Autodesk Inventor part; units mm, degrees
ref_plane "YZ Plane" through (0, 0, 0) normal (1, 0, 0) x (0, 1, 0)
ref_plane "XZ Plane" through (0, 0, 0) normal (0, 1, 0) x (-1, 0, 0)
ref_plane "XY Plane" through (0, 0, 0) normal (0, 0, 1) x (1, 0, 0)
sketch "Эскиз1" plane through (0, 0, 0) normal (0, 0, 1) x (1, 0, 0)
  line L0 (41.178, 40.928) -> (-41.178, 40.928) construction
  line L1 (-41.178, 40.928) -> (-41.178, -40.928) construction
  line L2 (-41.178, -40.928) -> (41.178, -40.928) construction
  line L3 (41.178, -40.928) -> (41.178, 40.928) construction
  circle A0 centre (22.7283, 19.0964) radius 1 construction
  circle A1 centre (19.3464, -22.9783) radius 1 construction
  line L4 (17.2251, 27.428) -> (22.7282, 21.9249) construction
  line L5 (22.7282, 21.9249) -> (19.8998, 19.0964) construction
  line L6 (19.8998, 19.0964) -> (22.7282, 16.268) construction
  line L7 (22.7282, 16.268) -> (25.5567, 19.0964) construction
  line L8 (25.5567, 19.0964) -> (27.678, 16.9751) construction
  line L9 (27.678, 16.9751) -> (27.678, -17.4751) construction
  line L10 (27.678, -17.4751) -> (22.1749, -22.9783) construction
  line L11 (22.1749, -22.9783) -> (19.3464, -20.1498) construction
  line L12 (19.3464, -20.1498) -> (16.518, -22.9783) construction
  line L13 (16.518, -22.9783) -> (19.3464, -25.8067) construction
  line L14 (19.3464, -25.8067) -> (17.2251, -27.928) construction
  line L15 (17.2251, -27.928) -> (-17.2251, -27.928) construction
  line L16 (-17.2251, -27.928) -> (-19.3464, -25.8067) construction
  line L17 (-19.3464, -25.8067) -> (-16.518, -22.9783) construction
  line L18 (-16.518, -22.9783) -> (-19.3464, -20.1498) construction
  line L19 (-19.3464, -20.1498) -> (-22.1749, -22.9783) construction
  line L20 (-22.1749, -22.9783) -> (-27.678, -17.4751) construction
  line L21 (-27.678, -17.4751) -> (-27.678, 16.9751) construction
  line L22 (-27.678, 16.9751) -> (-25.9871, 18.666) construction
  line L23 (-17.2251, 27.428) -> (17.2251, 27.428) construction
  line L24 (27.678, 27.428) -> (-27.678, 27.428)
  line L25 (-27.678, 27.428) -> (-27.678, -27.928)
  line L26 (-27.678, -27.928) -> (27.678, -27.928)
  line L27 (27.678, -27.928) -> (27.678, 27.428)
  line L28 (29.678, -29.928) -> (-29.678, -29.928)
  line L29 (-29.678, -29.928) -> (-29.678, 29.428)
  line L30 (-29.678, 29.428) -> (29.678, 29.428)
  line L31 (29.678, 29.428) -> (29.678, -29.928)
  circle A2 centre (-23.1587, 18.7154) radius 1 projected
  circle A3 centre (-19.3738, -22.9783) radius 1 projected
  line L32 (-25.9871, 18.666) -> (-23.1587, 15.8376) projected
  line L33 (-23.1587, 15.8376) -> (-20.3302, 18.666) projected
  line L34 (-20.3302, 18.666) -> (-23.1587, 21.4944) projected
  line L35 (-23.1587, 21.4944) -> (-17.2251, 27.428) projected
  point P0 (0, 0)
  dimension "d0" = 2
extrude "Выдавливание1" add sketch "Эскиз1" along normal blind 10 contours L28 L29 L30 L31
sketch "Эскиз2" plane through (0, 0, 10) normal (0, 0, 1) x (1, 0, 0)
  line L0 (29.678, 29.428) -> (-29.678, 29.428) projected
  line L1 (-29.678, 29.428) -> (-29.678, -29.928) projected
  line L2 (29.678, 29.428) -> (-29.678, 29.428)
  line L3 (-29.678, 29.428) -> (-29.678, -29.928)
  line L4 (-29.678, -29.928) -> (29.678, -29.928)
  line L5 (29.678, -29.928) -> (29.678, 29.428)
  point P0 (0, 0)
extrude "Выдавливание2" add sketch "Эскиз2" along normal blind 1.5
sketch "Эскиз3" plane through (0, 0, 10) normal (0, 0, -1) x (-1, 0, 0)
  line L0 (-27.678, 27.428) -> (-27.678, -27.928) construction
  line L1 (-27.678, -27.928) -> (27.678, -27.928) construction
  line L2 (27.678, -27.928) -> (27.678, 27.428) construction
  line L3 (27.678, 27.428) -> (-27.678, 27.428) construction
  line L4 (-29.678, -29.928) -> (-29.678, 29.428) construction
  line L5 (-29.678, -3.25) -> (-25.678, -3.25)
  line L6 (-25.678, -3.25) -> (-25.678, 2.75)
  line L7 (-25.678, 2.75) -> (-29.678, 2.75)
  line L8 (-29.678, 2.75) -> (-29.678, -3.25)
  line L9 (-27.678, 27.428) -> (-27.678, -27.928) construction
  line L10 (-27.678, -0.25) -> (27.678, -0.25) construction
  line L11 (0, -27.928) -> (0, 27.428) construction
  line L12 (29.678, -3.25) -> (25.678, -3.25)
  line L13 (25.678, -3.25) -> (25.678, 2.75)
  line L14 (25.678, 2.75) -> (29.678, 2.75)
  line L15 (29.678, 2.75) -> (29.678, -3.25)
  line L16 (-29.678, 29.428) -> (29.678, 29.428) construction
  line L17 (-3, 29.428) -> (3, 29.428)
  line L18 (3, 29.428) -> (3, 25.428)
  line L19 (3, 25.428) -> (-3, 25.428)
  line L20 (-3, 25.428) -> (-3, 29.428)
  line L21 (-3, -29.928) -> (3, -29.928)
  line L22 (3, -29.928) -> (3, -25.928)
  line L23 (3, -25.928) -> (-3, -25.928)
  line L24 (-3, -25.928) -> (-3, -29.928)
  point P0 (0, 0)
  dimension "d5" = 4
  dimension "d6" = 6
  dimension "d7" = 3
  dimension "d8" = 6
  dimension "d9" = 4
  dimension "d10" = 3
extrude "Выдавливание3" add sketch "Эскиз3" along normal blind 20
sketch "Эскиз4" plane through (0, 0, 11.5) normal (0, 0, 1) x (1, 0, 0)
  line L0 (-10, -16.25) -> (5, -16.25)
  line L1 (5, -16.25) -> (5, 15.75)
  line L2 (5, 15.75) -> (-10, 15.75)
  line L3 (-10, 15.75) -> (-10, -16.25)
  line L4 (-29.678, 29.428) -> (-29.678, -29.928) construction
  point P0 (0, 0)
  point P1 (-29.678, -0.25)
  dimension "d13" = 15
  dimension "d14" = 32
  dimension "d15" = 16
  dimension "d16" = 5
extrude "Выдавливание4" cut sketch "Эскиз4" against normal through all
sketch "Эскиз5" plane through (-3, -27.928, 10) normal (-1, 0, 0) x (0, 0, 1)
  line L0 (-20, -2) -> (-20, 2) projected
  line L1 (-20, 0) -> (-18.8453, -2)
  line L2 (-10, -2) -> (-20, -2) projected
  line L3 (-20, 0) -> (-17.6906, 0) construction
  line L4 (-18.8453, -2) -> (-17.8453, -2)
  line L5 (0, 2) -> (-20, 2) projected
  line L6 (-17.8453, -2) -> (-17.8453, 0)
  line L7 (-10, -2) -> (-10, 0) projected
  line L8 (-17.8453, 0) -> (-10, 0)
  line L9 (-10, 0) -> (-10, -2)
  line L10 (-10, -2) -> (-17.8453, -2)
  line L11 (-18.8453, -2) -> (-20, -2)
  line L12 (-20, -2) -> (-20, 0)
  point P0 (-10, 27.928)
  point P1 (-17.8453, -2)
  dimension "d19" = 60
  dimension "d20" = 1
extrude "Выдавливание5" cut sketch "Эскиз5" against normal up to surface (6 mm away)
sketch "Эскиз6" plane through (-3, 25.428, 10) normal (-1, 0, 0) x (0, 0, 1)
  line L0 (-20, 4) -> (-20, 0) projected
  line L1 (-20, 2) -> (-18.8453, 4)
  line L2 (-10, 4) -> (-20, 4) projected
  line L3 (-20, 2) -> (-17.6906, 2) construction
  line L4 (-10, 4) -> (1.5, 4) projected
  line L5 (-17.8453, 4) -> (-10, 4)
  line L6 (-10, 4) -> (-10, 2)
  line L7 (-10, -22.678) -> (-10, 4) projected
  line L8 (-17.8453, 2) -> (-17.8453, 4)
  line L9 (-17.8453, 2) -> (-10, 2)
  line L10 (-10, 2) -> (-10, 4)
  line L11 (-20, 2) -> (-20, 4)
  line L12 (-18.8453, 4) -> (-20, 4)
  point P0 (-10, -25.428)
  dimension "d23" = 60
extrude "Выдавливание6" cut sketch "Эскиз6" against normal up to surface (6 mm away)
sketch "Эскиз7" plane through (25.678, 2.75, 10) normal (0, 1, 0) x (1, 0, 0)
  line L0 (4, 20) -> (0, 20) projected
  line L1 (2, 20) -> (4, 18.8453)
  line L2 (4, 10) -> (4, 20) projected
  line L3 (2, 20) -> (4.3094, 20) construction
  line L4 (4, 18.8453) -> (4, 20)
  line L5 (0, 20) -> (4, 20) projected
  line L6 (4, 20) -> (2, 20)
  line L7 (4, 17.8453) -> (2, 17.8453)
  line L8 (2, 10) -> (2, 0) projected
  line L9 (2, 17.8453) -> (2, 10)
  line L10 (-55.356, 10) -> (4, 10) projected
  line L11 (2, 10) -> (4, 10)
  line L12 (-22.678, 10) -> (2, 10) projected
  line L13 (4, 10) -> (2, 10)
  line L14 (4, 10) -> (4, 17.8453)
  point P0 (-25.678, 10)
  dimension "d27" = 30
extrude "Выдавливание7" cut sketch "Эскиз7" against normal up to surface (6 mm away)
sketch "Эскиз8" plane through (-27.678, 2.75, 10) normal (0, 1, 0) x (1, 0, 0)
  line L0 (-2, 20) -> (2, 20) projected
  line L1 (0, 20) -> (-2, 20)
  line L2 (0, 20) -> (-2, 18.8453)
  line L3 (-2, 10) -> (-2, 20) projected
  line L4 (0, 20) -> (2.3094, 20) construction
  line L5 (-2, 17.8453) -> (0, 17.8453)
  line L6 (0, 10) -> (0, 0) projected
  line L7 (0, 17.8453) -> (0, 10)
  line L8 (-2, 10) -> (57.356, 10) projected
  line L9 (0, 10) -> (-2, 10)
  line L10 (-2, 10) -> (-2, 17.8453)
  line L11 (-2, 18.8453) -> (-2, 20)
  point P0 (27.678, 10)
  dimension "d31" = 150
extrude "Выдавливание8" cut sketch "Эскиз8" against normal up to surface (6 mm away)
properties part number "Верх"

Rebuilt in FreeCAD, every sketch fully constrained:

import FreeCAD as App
import Part
import Sketcher
from FreeCAD import Vector
Q = App.Units.Quantity

doc = App.newDocument("Part")
body = doc.addObject("PartDesign::Body", "Body")

sketch1 = doc.addObject("Sketcher::SketchObject", "Sketch")
body.addObject(sketch1)
sketch1.AttachmentSupport = (doc.XY_Plane, [""])
sketch1.MapMode = "FlatFace"
sketch1.addGeometry([
    Part.LineSegment(Vector(-30, -30, 0), Vector(30, -30, 0)),
    Part.LineSegment(Vector(30, -30, 0), Vector(30, 29, 0)),
    Part.LineSegment(Vector(30, 29, 0), Vector(-30, 29, 0)),
    Part.LineSegment(Vector(-30, 29, 0), Vector(-30, -30, 0)),
    Part.LineSegment(Vector(-28, 27, 0), Vector(28, 27, 0)),
    Part.LineSegment(Vector(28, 27, 0), Vector(28, -28, 0)),
    Part.LineSegment(Vector(28, -28, 0), Vector(-28, -28, 0)),
    Part.LineSegment(Vector(-28, -28, 0), Vector(-28, 27, 0)),
], False)
sketch1.addConstraint([
    Sketcher.Constraint("Coincident", 0, 2, 1, 1),
    Sketcher.Constraint("Coincident", 1, 2, 2, 1),
    Sketcher.Constraint("Coincident", 2, 2, 3, 1),
    Sketcher.Constraint("Coincident", 3, 2, 0, 1),
    Sketcher.Constraint("Coincident", 4, 2, 5, 1),
    Sketcher.Constraint("Coincident", 5, 2, 6, 1),
    Sketcher.Constraint("Coincident", 6, 2, 7, 1),
    Sketcher.Constraint("Coincident", 7, 2, 4, 1),
    Sketcher.Constraint("Horizontal", 0),
    Sketcher.Constraint("Vertical", 1),
    Sketcher.Constraint("Horizontal", 2),
    Sketcher.Constraint("Vertical", 3),
    Sketcher.Constraint("Horizontal", 4),
    Sketcher.Constraint("Vertical", 5),
    Sketcher.Constraint("Horizontal", 6),
    Sketcher.Constraint("Vertical", 7),
    Sketcher.Constraint("Equal", 2, 1),
    Sketcher.Constraint("Equal", 6, 5),
    Sketcher.Constraint("DistanceX", 4, 2, 1, 2, Q("2 mm")),
    Sketcher.Constraint("DistanceY", 4, 2, 1, 2, Q("2 mm")),
    Sketcher.Constraint("DistanceY", 0, 2, 5, 2, Q("2 mm")),
    Sketcher.Constraint("DistanceX", 0, 1, 0, 2, Q("59.356 mm")),
    Sketcher.Constraint("DistanceX", -1, 1, 0, 2, Q("29.678 mm")),
    Sketcher.Constraint("DistanceY", 0, 2, -1, 1, Q("29.928 mm")),
])
pad1 = doc.addObject("PartDesign::Pad", "Pad")
body.addObject(pad1)
pad1.Profile = sketch1
pad1.Length = 10

sketch2 = doc.addObject("Sketcher::SketchObject", "Sketch001")
body.addObject(sketch2)
sketch2.AttachmentSupport = (doc.XY_Plane, [""])
sketch2.MapMode = "FlatFace"
sketch2.AttachmentOffset = App.Placement(Vector(0, 0, 10), App.Rotation())
sketch2.addGeometry([
    Part.LineSegment(Vector(30, -30, 0), Vector(30, 29, 0)),
    Part.LineSegment(Vector(30, 29, 0), Vector(-30, 29, 0)),
    Part.LineSegment(Vector(-30, 29, 0), Vector(-30, -30, 0)),
    Part.LineSegment(Vector(-30, -30, 0), Vector(30, -30, 0)),
], False)
sketch2.addConstraint([
    Sketcher.Constraint("Coincident", 0, 2, 1, 1),
    Sketcher.Constraint("Coincident", 1, 2, 2, 1),
    Sketcher.Constraint("Coincident", 2, 2, 3, 1),
    Sketcher.Constraint("Coincident", 3, 2, 0, 1),
    Sketcher.Constraint("Vertical", 0),
    Sketcher.Constraint("Horizontal", 1),
    Sketcher.Constraint("Vertical", 2),
    Sketcher.Constraint("Horizontal", 3),
    Sketcher.Constraint("Equal", 3, 0),
    Sketcher.Constraint("DistanceX", 1, 2, 1, 1, Q("59.356 mm")),
    Sketcher.Constraint("DistanceX", -1, 1, 0, 2, Q("29.678 mm")),
    Sketcher.Constraint("DistanceY", -1, 1, 0, 2, Q("29.428 mm")),
])
pad2 = doc.addObject("PartDesign::Pad", "Pad001")
body.addObject(pad2)
pad2.Profile = sketch2
pad2.Length = 1.5

sketch3 = doc.addObject("Sketcher::SketchObject", "Sketch002")
body.addObject(sketch3)
sketch3.AttachmentSupport = (doc.XY_Plane, [""])
sketch3.MapMode = "FlatFace"
sketch3.AttachmentOffset = App.Placement(Vector(0, 0, 10), App.Rotation())
sketch3.addGeometry([
    Part.LineSegment(Vector(29.7, 2.8, 0), Vector(29.7, -3.2, 0)),
    Part.LineSegment(Vector(29.7, -3.2, 0), Vector(25.7, -3.2, 0)),
    Part.LineSegment(Vector(25.7, -3.2, 0), Vector(25.7, 2.8, 0)),
    Part.LineSegment(Vector(25.7, 2.8, 0), Vector(29.7, 2.8, 0)),
    Part.LineSegment(Vector(-25.7, -3.2, 0), Vector(-29.7, -3.2, 0)),
    Part.LineSegment(Vector(-29.7, -3.2, 0), Vector(-29.7, 2.8, 0)),
    Part.LineSegment(Vector(-29.7, 2.8, 0), Vector(-25.7, 2.8, 0)),
    Part.LineSegment(Vector(-25.7, 2.8, 0), Vector(-25.7, -3.2, 0)),
    Part.LineSegment(Vector(-3, 29.4, 0), Vector(3, 29.4, 0)),
    Part.LineSegment(Vector(3, 29.4, 0), Vector(3, 25.4, 0)),
    Part.LineSegment(Vector(3, 25.4, 0), Vector(-3, 25.4, 0)),
    Part.LineSegment(Vector(-3, 25.4, 0), Vector(-3, 29.4, 0)),
    Part.LineSegment(Vector(3, -25.9, 0), Vector(3, -29.9, 0)),
    Part.LineSegment(Vector(3, -29.9, 0), Vector(-3, -29.9, 0)),
    Part.LineSegment(Vector(-3, -29.9, 0), Vector(-3, -25.9, 0)),
    Part.LineSegment(Vector(-3, -25.9, 0), Vector(3, -25.9, 0)),
], False)
sketch3.addConstraint([
    Sketcher.Constraint("Coincident", 0, 2, 1, 1),
    Sketcher.Constraint("Coincident", 1, 2, 2, 1),
    Sketcher.Constraint("Coincident", 2, 2, 3, 1),
    Sketcher.Constraint("Coincident", 3, 2, 0, 1),
    Sketcher.Constraint("Coincident", 4, 2, 5, 1),
    Sketcher.Constraint("Coincident", 5, 2, 6, 1),
    Sketcher.Constraint("Coincident", 6, 2, 7, 1),
    Sketcher.Constraint("Coincident", 7, 2, 4, 1),
    Sketcher.Constraint("Coincident", 8, 2, 9, 1),
    Sketcher.Constraint("Coincident", 9, 2, 10, 1),
    Sketcher.Constraint("Coincident", 10, 2, 11, 1),
    Sketcher.Constraint("Coincident", 11, 2, 8, 1),
    Sketcher.Constraint("Coincident", 12, 2, 13, 1),
    Sketcher.Constraint("Coincident", 13, 2, 14, 1),
    Sketcher.Constraint("Coincident", 14, 2, 15, 1),
    Sketcher.Constraint("Coincident", 15, 2, 12, 1),
    Sketcher.Constraint("Vertical", 0),
    Sketcher.Constraint("Horizontal", 1),
    Sketcher.Constraint("Vertical", 2),
    Sketcher.Constraint("Horizontal", 3),
    Sketcher.Constraint("Horizontal", 4),
    Sketcher.Constraint("Vertical", 5),
    Sketcher.Constraint("Horizontal", 6),
    Sketcher.Constraint("Vertical", 7),
    Sketcher.Constraint("Horizontal", 8),
    Sketcher.Constraint("Vertical", 9),
    Sketcher.Constraint("Horizontal", 10),
    Sketcher.Constraint("Vertical", 11),
    Sketcher.Constraint("Vertical", 12),
    Sketcher.Constraint("Horizontal", 13),
    Sketcher.Constraint("Vertical", 14),
    Sketcher.Constraint("Horizontal", 15),
    Sketcher.Constraint("Symmetric", 0, 2, 4, 2, -2),
    Sketcher.Constraint("Symmetric", 2, 2, 6, 2, -2),
    Sketcher.Constraint("Vertical", 9, 2, 12, 2),
    Sketcher.Constraint("Vertical", 11, 2, 13, 2),
    Sketcher.Constraint("Equal", 15, 0),
    Sketcher.Constraint("Equal", 6, 9),
    Sketcher.Constraint("Equal", 11, 12),
    Sketcher.Constraint("DistanceX", 1, 2, 1, 1, Q("4 mm")),
    Sketcher.Constraint("DistanceX", 8, 1, 8, 2, Q("6 mm")),
    Sketcher.Constraint("DistanceX", -1, 1, 8, 2, Q("3 mm")),
    Sketcher.Constraint("DistanceY", 0, 2, -1, 1, Q("3.25 mm")),
    Sketcher.Constraint("DistanceX", -1, 1, 0, 2, Q("29.678 mm")),
    Sketcher.Constraint("DistanceY", -1, 1, 8, 2, Q("29.428 mm")),
    Sketcher.Constraint("DistanceY", 12, 2, -1, 1, Q("29.928 mm")),
])
pad3 = doc.addObject("PartDesign::Pad", "Pad002")
body.addObject(pad3)
pad3.Profile = sketch3
pad3.Length = 20
pad3.Reversed = True

sketch4 = doc.addObject("Sketcher::SketchObject", "Sketch003")
body.addObject(sketch4)
sketch4.AttachmentSupport = (doc.XY_Plane, [""])
sketch4.MapMode = "FlatFace"
sketch4.AttachmentOffset = App.Placement(Vector(0, 0, 11.5), App.Rotation())
sketch4.addGeometry([
    Part.LineSegment(Vector(-10, 16, 0), Vector(-10, -16, 0)),
    Part.LineSegment(Vector(-10, -16, 0), Vector(5, -16, 0)),
    Part.LineSegment(Vector(5, -16, 0), Vector(5, 16, 0)),
    Part.LineSegment(Vector(5, 16, 0), Vector(-10, 16, 0)),
], False)
sketch4.addConstraint([
    Sketcher.Constraint("Coincident", 0, 2, 1, 1),
    Sketcher.Constraint("Coincident", 1, 2, 2, 1),
    Sketcher.Constraint("Coincident", 2, 2, 3, 1),
    Sketcher.Constraint("Coincident", 3, 2, 0, 1),
    Sketcher.Constraint("Vertical", 0),
    Sketcher.Constraint("Horizontal", 1),
    Sketcher.Constraint("Vertical", 2),
    Sketcher.Constraint("Horizontal", 3),
    Sketcher.Constraint("DistanceX", 1, 1, 1, 2, Q("15 mm")),
    Sketcher.Constraint("DistanceY", 0, 2, 0, 1, Q("32 mm")),
    Sketcher.Constraint("DistanceX", -1, 1, 1, 2, Q("5 mm")),
    Sketcher.Constraint("DistanceY", 0, 2, -1, 1, Q("16.25 mm")),
])
pocket1 = doc.addObject("PartDesign::Pocket", "Pocket")
body.addObject(pocket1)
pocket1.Profile = sketch4
pocket1.Type = "ThroughAll"

sketch5 = doc.addObject("Sketcher::SketchObject", "Sketch004")
body.addObject(sketch5)
sketch5.AttachmentSupport = (doc.YZ_Plane, [""])
sketch5.MapMode = "FlatFace"
sketch5.AttachmentOffset = App.Placement(Vector(0, 0, -3), App.Rotation())
sketch5.addGeometry([
    Part.LineSegment(Vector(-27.9, -7.8, 0), Vector(-29.9, -7.8, 0)),
    Part.LineSegment(Vector(-29.9, -7.8, 0), Vector(-29.9, 0, 0)),
    Part.LineSegment(Vector(-29.9, 0, 0), Vector(-27.9, 0, 0)),
    Part.LineSegment(Vector(-27.9, 0, 0), Vector(-27.9, -7.8, 0)),
    Part.LineSegment(Vector(-27.9, -10, 0), Vector(-29.9, -10, 0)),
    Part.LineSegment(Vector(-29.9, -10, 0), Vector(-29.9, -8.8, 0)),
    Part.LineSegment(Vector(-29.9, -8.8, 0), Vector(-27.9, -10, 0)),
], False)
sketch5.addConstraint([
    Sketcher.Constraint("Coincident", 0, 2, 1, 1),
    Sketcher.Constraint("Coincident", 1, 2, 2, 1),
    Sketcher.Constraint("Coincident", 2, 2, 3, 1),
    Sketcher.Constraint("Coincident", 3, 2, 0, 1),
    Sketcher.Constraint("Coincident", 4, 2, 5, 1),
    Sketcher.Constraint("Coincident", 5, 2, 6, 1),
    Sketcher.Constraint("Coincident", 6, 2, 4, 1),
    Sketcher.Constraint("Horizontal", 0),
    Sketcher.Constraint("Vertical", 1),
    Sketcher.Constraint("Horizontal", 2),
    Sketcher.Constraint("Vertical", 3),
    Sketcher.Constraint("Horizontal", 4),
    Sketcher.Constraint("Vertical", 5),
    Sketcher.Constraint("PointOnObject", 1, 2, -1),
    Sketcher.Constraint("Vertical", 1, 2, 4, 2),
    Sketcher.Constraint("Vertical", 3, 2, 6, 2),
    Sketcher.Constraint("DistanceY", 5, 2, 0, 2, Q("1 mm")),
    Sketcher.Constraint("DistanceX", 0, 2, 0, 1, Q("2 mm")),
    Sketcher.Constraint("Angle", 6, Q("-30 deg")),
    Sketcher.Constraint("DistanceY", 4, 2, -1, 1, Q("10 mm")),
    Sketcher.Constraint("DistanceX", 0, 2, -1, 1, Q("29.928 mm")),
])
pocket2 = doc.addObject("PartDesign::Pocket", "Pocket001")
body.addObject(pocket2)
pocket2.Profile = sketch5
pocket2.Length = 6
pocket2.Reversed = True

sketch6 = doc.addObject("Sketcher::SketchObject", "Sketch005")
body.addObject(sketch6)
sketch6.AttachmentSupport = (doc.YZ_Plane, [""])
sketch6.MapMode = "FlatFace"
sketch6.AttachmentOffset = App.Placement(Vector(0, 0, -3), App.Rotation())
sketch6.addGeometry([
    Part.LineSegment(Vector(29.4, -8.8, 0), Vector(29.4, -10, 0)),
    Part.LineSegment(Vector(29.4, -10, 0), Vector(27.4, -10, 0)),
    Part.LineSegment(Vector(27.4, -10, 0), Vector(29.4, -8.8, 0)),
    Part.LineSegment(Vector(29.4, 0, 0), Vector(29.4, -7.8, 0)),
    Part.LineSegment(Vector(29.4, -7.8, 0), Vector(27.4, -7.8, 0)),
    Part.LineSegment(Vector(27.4, -7.8, 0), Vector(27.4, 0, 0)),
    Part.LineSegment(Vector(27.4, 0, 0), Vector(29.4, 0, 0)),
], False)
sketch6.addConstraint([
    Sketcher.Constraint("Coincident", 0, 2, 1, 1),
    Sketcher.Constraint("Coincident", 1, 2, 2, 1),
    Sketcher.Constraint("Coincident", 2, 2, 0, 1),
    Sketcher.Constraint("Coincident", 3, 2, 4, 1),
    Sketcher.Constraint("Coincident", 4, 2, 5, 1),
    Sketcher.Constraint("Coincident", 5, 2, 6, 1),
    Sketcher.Constraint("Coincident", 6, 2, 3, 1),
    Sketcher.Constraint("Vertical", 0),
    Sketcher.Constraint("Horizontal", 1),
    Sketcher.Constraint("Vertical", 3),
    Sketcher.Constraint("Horizontal", 4),
    Sketcher.Constraint("Vertical", 5),
    Sketcher.Constraint("Horizontal", 6),
    Sketcher.Constraint("PointOnObject", 5, 2, -1),
    Sketcher.Constraint("Vertical", 2, 2, 3, 2),
    Sketcher.Constraint("Vertical", 1, 2, 4, 2),
    Sketcher.Constraint("DistanceX", 1, 2, 1, 1, Q("2 mm")),
    Sketcher.Constraint("Angle", 2, Q("30 deg")),
    Sketcher.Constraint("DistanceY", 0, 2, -1, 1, Q("10 mm")),
    Sketcher.Constraint("DistanceY", 2, 2, 3, 2, Q("1 mm")),
    Sketcher.Constraint("DistanceX", -1, 1, 0, 2, Q("29.428 mm")),
])
pocket3 = doc.addObject("PartDesign::Pocket", "Pocket002")
body.addObject(pocket3)
pocket3.Profile = sketch6
pocket3.Length = 6
pocket3.Reversed = True

sketch7 = doc.addObject("Sketcher::SketchObject", "Sketch006")
body.addObject(sketch7)
sketch7.AttachmentSupport = (doc.XZ_Plane, [""])
sketch7.MapMode = "FlatFace"
sketch7.AttachmentOffset = App.Placement(Vector(0, 0, -2.75), App.Rotation())
sketch7.addGeometry([
    Part.LineSegment(Vector(29.7, -8.8, 0), Vector(29.7, -10, 0)),
    Part.LineSegment(Vector(29.7, -10, 0), Vector(27.7, -10, 0)),
    Part.LineSegment(Vector(27.7, -10, 0), Vector(29.7, -8.8, 0)),
    Part.LineSegment(Vector(29.7, 0, 0), Vector(29.7, -7.8, 0)),
    Part.LineSegment(Vector(29.7, -7.8, 0), Vector(27.7, -7.8, 0)),
    Part.LineSegment(Vector(27.7, -7.8, 0), Vector(27.7, 0, 0)),
    Part.LineSegment(Vector(27.7, 0, 0), Vector(29.7, 0, 0)),
], False)
sketch7.addConstraint([
    Sketcher.Constraint("Coincident", 0, 2, 1, 1),
    Sketcher.Constraint("Coincident", 1, 2, 2, 1),
    Sketcher.Constraint("Coincident", 2, 2, 0, 1),
    Sketcher.Constraint("Coincident", 3, 2, 4, 1),
    Sketcher.Constraint("Coincident", 4, 2, 5, 1),
    Sketcher.Constraint("Coincident", 5, 2, 6, 1),
    Sketcher.Constraint("Coincident", 6, 2, 3, 1),
    Sketcher.Constraint("Vertical", 0),
    Sketcher.Constraint("Horizontal", 1),
    Sketcher.Constraint("Vertical", 3),
    Sketcher.Constraint("Horizontal", 4),
    Sketcher.Constraint("Vertical", 5),
    Sketcher.Constraint("Horizontal", 6),
    Sketcher.Constraint("PointOnObject", 5, 2, -1),
    Sketcher.Constraint("Vertical", 2, 2, 3, 2),
    Sketcher.Constraint("Vertical", 1, 2, 4, 2),
    Sketcher.Constraint("Angle", 2, Q("30 deg")),
    Sketcher.Constraint("DistanceX", 1, 2, 1, 1, Q("2 mm")),
    Sketcher.Constraint("DistanceY", 0, 2, -1, 1, Q("10 mm")),
    Sketcher.Constraint("DistanceY", 2, 2, 3, 2, Q("1 mm")),
    Sketcher.Constraint("DistanceX", -1, 1, 0, 2, Q("29.678 mm")),
])
pocket4 = doc.addObject("PartDesign::Pocket", "Pocket003")
body.addObject(pocket4)
pocket4.Profile = sketch7
pocket4.Length = 6
pocket4.Reversed = True

sketch8 = doc.addObject("Sketcher::SketchObject", "Sketch007")
body.addObject(sketch8)
sketch8.AttachmentSupport = (doc.XZ_Plane, [""])
sketch8.MapMode = "FlatFace"
sketch8.AttachmentOffset = App.Placement(Vector(0, 0, -2.75), App.Rotation())
sketch8.addGeometry([
    Part.LineSegment(Vector(-27.7, -7.8, 0), Vector(-29.7, -7.8, 0)),
    Part.LineSegment(Vector(-29.7, -7.8, 0), Vector(-29.7, 0, 0)),
    Part.LineSegment(Vector(-29.7, 0, 0), Vector(-27.7, 0, 0)),
    Part.LineSegment(Vector(-27.7, 0, 0), Vector(-27.7, -7.8, 0)),
    Part.LineSegment(Vector(-27.7, -10, 0), Vector(-29.7, -10, 0)),
    Part.LineSegment(Vector(-29.7, -10, 0), Vector(-29.7, -8.8, 0)),
    Part.LineSegment(Vector(-29.7, -8.8, 0), Vector(-27.7, -10, 0)),
], False)
sketch8.addConstraint([
    Sketcher.Constraint("Coincident", 0, 2, 1, 1),
    Sketcher.Constraint("Coincident", 1, 2, 2, 1),
    Sketcher.Constraint("Coincident", 2, 2, 3, 1),
    Sketcher.Constraint("Coincident", 3, 2, 0, 1),
    Sketcher.Constraint("Coincident", 4, 2, 5, 1),
    Sketcher.Constraint("Coincident", 5, 2, 6, 1),
    Sketcher.Constraint("Coincident", 6, 2, 4, 1),
    Sketcher.Constraint("Horizontal", 0),
    Sketcher.Constraint("Vertical", 1),
    Sketcher.Constraint("Horizontal", 2),
    Sketcher.Constraint("Vertical", 3),
    Sketcher.Constraint("Horizontal", 4),
    Sketcher.Constraint("Vertical", 5),
    Sketcher.Constraint("PointOnObject", 1, 2, -1),
    Sketcher.Constraint("Vertical", 1, 2, 4, 2),
    Sketcher.Constraint("Vertical", 3, 2, 6, 2),
    Sketcher.Constraint("DistanceX", 0, 2, 0, 1, Q("2 mm")),
    Sketcher.Constraint("Angle", 6, Q("-30 deg")),
    Sketcher.Constraint("DistanceY", 4, 2, -1, 1, Q("10 mm")),
    Sketcher.Constraint("DistanceY", 5, 2, 0, 2, Q("1 mm")),
    Sketcher.Constraint("DistanceX", 0, 2, -1, 1, Q("29.678 mm")),
])
pocket5 = doc.addObject("PartDesign::Pocket", "Pocket004")
body.addObject(pocket5)
pocket5.Profile = sketch8
pocket5.Length = 6
pocket5.Reversed = True

doc.recompute()
